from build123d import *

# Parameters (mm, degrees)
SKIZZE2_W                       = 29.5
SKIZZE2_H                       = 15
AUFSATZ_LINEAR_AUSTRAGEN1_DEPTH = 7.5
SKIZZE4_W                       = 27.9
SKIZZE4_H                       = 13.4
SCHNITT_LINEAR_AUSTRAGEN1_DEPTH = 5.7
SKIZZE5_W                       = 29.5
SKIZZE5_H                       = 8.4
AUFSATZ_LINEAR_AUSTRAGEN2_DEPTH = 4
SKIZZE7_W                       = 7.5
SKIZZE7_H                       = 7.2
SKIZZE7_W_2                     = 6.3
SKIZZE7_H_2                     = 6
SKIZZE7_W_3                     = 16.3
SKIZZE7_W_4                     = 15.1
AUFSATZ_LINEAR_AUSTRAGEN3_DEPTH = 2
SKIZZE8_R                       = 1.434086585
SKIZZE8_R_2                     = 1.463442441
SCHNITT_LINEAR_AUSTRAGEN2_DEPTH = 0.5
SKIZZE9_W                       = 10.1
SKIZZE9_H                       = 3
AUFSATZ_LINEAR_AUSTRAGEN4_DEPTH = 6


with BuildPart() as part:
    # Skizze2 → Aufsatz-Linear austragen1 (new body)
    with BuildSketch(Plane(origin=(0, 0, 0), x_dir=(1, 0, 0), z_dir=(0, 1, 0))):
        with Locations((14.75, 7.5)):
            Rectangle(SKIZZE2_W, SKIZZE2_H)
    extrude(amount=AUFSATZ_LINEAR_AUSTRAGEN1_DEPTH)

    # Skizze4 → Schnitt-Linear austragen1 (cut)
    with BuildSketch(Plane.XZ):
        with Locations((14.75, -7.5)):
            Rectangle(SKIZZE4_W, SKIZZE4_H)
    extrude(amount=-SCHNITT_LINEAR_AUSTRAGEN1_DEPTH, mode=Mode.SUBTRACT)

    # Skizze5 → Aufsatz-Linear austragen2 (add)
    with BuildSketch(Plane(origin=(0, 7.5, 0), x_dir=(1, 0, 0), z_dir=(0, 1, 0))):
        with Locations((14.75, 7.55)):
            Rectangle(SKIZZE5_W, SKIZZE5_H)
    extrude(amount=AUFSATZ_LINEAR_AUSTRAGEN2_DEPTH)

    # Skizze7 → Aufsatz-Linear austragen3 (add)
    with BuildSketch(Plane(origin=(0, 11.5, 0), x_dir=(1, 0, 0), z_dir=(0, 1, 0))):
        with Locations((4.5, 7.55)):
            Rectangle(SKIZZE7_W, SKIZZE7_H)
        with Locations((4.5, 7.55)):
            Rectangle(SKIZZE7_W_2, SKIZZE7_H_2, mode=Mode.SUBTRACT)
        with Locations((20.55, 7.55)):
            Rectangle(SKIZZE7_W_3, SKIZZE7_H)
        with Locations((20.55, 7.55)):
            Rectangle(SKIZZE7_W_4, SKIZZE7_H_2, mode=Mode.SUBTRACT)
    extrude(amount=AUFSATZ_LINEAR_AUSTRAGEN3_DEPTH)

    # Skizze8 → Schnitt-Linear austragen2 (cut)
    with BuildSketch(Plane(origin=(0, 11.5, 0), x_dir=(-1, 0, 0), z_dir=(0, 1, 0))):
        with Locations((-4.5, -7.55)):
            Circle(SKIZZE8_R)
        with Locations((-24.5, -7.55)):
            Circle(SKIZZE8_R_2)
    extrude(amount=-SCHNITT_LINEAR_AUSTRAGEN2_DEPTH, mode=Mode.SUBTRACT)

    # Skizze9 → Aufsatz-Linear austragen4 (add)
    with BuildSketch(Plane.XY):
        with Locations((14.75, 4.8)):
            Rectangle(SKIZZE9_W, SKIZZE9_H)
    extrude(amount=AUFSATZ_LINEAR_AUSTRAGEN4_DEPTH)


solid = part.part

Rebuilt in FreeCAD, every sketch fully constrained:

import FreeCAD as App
import Part
import Sketcher
from FreeCAD import Vector


def add_polygon(sketch, points):
    """Adds a closed chain of lines whose ends are joined by coincident constraints."""
    first, n = sketch.GeometryCount, len(points)
    for a, b in zip(points, points[1:] + points[:1]):
        sketch.addGeometry(Part.LineSegment(App.Vector(*a, 0), App.Vector(*b, 0)), False)
    for i in range(n):
        sketch.addConstraint(Sketcher.Constraint("Coincident", first + i, 2, first + (i + 1) % n, 1))

doc = App.newDocument("Part")
params = doc.addObject("Spreadsheet::Sheet", "Params")
for row, (alias, value) in enumerate([
    ("sketch1_height", "15 mm"),
    ("sketch1_width", "29.5 mm"),
    ("pad1_length", "7.5 mm"),
    ("sketch2_width", "27.9 mm"),
    ("sketch2_height", "13.4 mm"),
    ("pocket1_length", "5.7 mm"),
    ("sketch3_width", "29.5 mm"),
    ("sketch3_height", "8.4 mm"),
    ("pad2_length", "4 mm"),
    ("sketch4_height", "6 mm"),
    ("sketch4_width", "7.5 mm"),
    ("sketch4_width2", "6.3 mm"),
    ("sketch4_width3", "16.3 mm"),
    ("sketch4_width4", "15.1 mm"),
    ("pad3_length", "2 mm"),
    ("pocket2_length", "0.5 mm"),
    ("sketch6_height", "3 mm"),
    ("sketch6_width", "10.1 mm"),
    ("pad4_length", "6 mm"),
], start=1):
    params.set(f"A{row}", alias)
    params.set(f"B{row}", "=" + value)
    params.setAlias(f"B{row}", alias)

body = doc.addObject("PartDesign::Body", "Body")

# Sketch on XZ plane
sketch1 = doc.addObject("Sketcher::SketchObject", "Sketch")
body.addObject(sketch1)
sketch1.AttachmentSupport = (doc.XZ_Plane, [""])
sketch1.MapMode = "FlatFace"
add_polygon(sketch1, [(0, -15), (0, 0), (30, 0), (30, -15)])  # lines 0-3
sketch1.addConstraint([
    Sketcher.Constraint("Vertical", 0),
    Sketcher.Constraint("Horizontal", 1),
    Sketcher.Constraint("Vertical", 2),
    Sketcher.Constraint("Horizontal", 3),
    Sketcher.Constraint("Coincident", 0, 2, -1, 1),
    Sketcher.Constraint("DistanceY", 0, 1, 0, 2, 15.0),
    Sketcher.Constraint("DistanceX", 1, 1, 1, 2, 29.5),
])
sketch1.setExpression("Constraints[9]", "Params.sketch1_height")
sketch1.setExpression("Constraints[10]", "Params.sketch1_width")
pad1 = doc.addObject("PartDesign::Pad", "Pad")
body.addObject(pad1)
pad1.Profile = sketch1
pad1.setExpression("Length", "Params.pad1_length")
pad1.Reversed = True

# Sketch on XZ plane
sketch2 = doc.addObject("Sketcher::SketchObject", "Sketch001")
body.addObject(sketch2)
sketch2.AttachmentSupport = (doc.XZ_Plane, [""])
sketch2.MapMode = "FlatFace"
add_polygon(sketch2, [(1, -1), (1, -14), (29, -14), (29, -1)])  # lines 0-3
sketch2.addConstraint([
    Sketcher.Constraint("Vertical", 0),
    Sketcher.Constraint("Horizontal", 1),
    Sketcher.Constraint("Vertical", 2),
    Sketcher.Constraint("Horizontal", 3),
    Sketcher.Constraint("DistanceX", 1, 1, 1, 2, 27.9),
    Sketcher.Constraint("DistanceY", 0, 2, 0, 1, 13.4),
    Sketcher.Constraint("DistanceX", -1, 1, 0, 2, 0.8),
    Sketcher.Constraint("DistanceY", 0, 2, -1, 1, 14.2),
])
sketch2.setExpression("Constraints[8]", "Params.sketch2_width")
sketch2.setExpression("Constraints[9]", "Params.sketch2_height")
pocket1 = doc.addObject("PartDesign::Pocket", "Pocket")
body.addObject(pocket1)
pocket1.Profile = sketch2
pocket1.setExpression("Length", "Params.pocket1_length")

# Sketch on XZ plane
sketch3 = doc.addObject("Sketcher::SketchObject", "Sketch002")
body.addObject(sketch3)
sketch3.AttachmentSupport = (doc.XZ_Plane, [""])
sketch3.MapMode = "FlatFace"
sketch3.AttachmentOffset = App.Placement(Vector(0, 0, -7.5), App.Rotation())
add_polygon(sketch3, [(0, -12), (0, -3), (30, -3), (30, -12)])  # lines 0-3
sketch3.addConstraint([
    Sketcher.Constraint("Vertical", 0),
    Sketcher.Constraint("Horizontal", 1),
    Sketcher.Constraint("Vertical", 2),
    Sketcher.Constraint("Horizontal", 3),
    Sketcher.Constraint("PointOnObject", 0, 2, -2),
    Sketcher.Constraint("DistanceX", 1, 1, 1, 2, 29.5),
    Sketcher.Constraint("DistanceY", 0, 1, 0, 2, 8.4),
    Sketcher.Constraint("DistanceY", 0, 2, -1, 1, 3.35),
])
sketch3.setExpression("Constraints[9]", "Params.sketch3_width")
sketch3.setExpression("Constraints[10]", "Params.sketch3_height")
pad2 = doc.addObject("PartDesign::Pad", "Pad001")
body.addObject(pad2)
pad2.Profile = sketch3
pad2.setExpression("Length", "Params.pad2_length")
pad2.Reversed = True

# Sketch on XZ plane
sketch4 = doc.addObject("Sketcher::SketchObject", "Sketch003")
body.addObject(sketch4)
sketch4.AttachmentSupport = (doc.XZ_Plane, [""])
sketch4.MapMode = "FlatFace"
sketch4.AttachmentOffset = App.Placement(Vector(0, 0, -11.5), App.Rotation())
add_polygon(sketch4, [(1, -11), (1, -4), (8, -4), (8, -11)])  # lines 0-3
add_polygon(sketch4, [(8, -5), (1, -5), (1, -11), (8, -11)])  # lines 4-7
add_polygon(sketch4, [(12, -11), (12, -4), (29, -4), (29, -11)])  # lines 8-11
add_polygon(sketch4, [(28, -5), (13, -5), (13, -11), (28, -11)])  # lines 12-15
sketch4.addConstraint([
    Sketcher.Constraint("Vertical", 0),
    Sketcher.Constraint("Horizontal", 1),
    Sketcher.Constraint("Vertical", 2),
    Sketcher.Constraint("Horizontal", 3),
    Sketcher.Constraint("Horizontal", 4),
    Sketcher.Constraint("Vertical", 5),
    Sketcher.Constraint("Horizontal", 6),
    Sketcher.Constraint("Vertical", 7),
    Sketcher.Constraint("Vertical", 8),
    Sketcher.Constraint("Horizontal", 9),
    Sketcher.Constraint("Vertical", 10),
    Sketcher.Constraint("Horizontal", 11),
    Sketcher.Constraint("Horizontal", 12),
    Sketcher.Constraint("Vertical", 13),
    Sketcher.Constraint("Horizontal", 14),
    Sketcher.Constraint("Vertical", 15),
    Sketcher.Constraint("Horizontal", 1, 2, 8, 2),
    Sketcher.Constraint("Horizontal", 3, 2, 10, 2),
    Sketcher.Constraint("Horizontal", 7, 2, 12, 2),
    Sketcher.Constraint("Horizontal", 6, 2, 13, 2),
    Sketcher.Constraint("DistanceY", 5, 2, 5, 1, 6.0),
    Sketcher.Constraint("DistanceX", 1, 1, 1, 2, 7.5),
    Sketcher.Constraint("DistanceX", 4, 2, 4, 1, 6.3),
    Sketcher.Constraint("DistanceX", 9, 1, 9, 2, 16.3),
    Sketcher.Constraint("DistanceX", 12, 2, 12, 1, 15.1),
    Sketcher.Constraint("DistanceY", 0, 1, 0, 2, 7.2),
    Sketcher.Constraint("DistanceX", -1, 1, 12, 2, 13.0),
    Sketcher.Constraint("DistanceX", -1, 1, 8, 2, 12.4),
    Sketcher.Constraint("DistanceX", 0, 2, 4, 2, 0.6),
    Sketcher.Constraint("DistanceY", 4, 2, 0, 2, 0.6),
    Sketcher.Constraint("DistanceX", -1, 1, 0, 2, 0.75),
    Sketcher.Constraint("DistanceY", 0, 2, -1, 1, 3.95),
])
sketch4.setExpression("Constraints[36]", "Params.sketch4_height")
sketch4.setExpression("Constraints[37]", "Params.sketch4_width")
sketch4.setExpression("Constraints[38]", "Params.sketch4_width2")
sketch4.setExpression("Constraints[39]", "Params.sketch4_width3")
sketch4.setExpression("Constraints[40]", "Params.sketch4_width4")
pad3 = doc.addObject("PartDesign::Pad", "Pad002")
body.addObject(pad3)
pad3.Profile = sketch4
pad3.setExpression("Length", "Params.pad3_length")
pad3.Reversed = True

# Sketch on XZ plane
sketch5 = doc.addObject("Sketcher::SketchObject", "Sketch004")
body.addObject(sketch5)
sketch5.AttachmentSupport = (doc.XZ_Plane, [""])
sketch5.MapMode = "FlatFace"
sketch5.AttachmentOffset = App.Placement(Vector(0, 0, -11.5), App.Rotation())
sketch5.addGeometry([
    Part.Circle(Vector(4.5, -7.5, 0), Vector(0, 0, 1), 1.4),
    Part.Circle(Vector(24.5, -7.5, 0), Vector(0, 0, 1), 1.5),
], False)
sketch5.addConstraint([
    Sketcher.Constraint("Horizontal", 0, 3, 1, 3),
    Sketcher.Constraint("DistanceX", 0, 3, 1, 3, 20.0),
    Sketcher.Constraint("DistanceX", -1, 1, 0, 3, 4.5),
    Sketcher.Constraint("DistanceY", 0, 3, -1, 1, 7.55),
    Sketcher.Constraint("Diameter", 0, 2.868173),
    Sketcher.Constraint("Diameter", 1, 2.926885),
])
pocket2 = doc.addObject("PartDesign::Pocket", "Pocket001")
body.addObject(pocket2)
pocket2.Profile = sketch5
pocket2.setExpression("Length", "Params.pocket2_length")
pocket2.Reversed = True

# Sketch on XY plane
sketch6 = doc.addObject("Sketcher::SketchObject", "Sketch005")
body.addObject(sketch6)
sketch6.AttachmentSupport = (doc.XY_Plane, [""])
sketch6.MapMode = "FlatFace"
add_polygon(sketch6, [(9.7, 6.3), (9.7, 3.3), (19.8, 3.3), (19.8, 6.3)])  # lines 0-3
sketch6.addConstraint([
    Sketcher.Constraint("Vertical", 0),
    Sketcher.Constraint("Horizontal", 1),
    Sketcher.Constraint("Vertical", 2),
    Sketcher.Constraint("Horizontal", 3),
    Sketcher.Constraint("DistanceY", 0, 2, 0, 1, 3.0),
    Sketcher.Constraint("DistanceX", 1, 1, 1, 2, 10.1),
    Sketcher.Constraint("DistanceX", -1, 1, 0, 2, 9.7),
    Sketcher.Constraint("DistanceY", -1, 1, 0, 2, 3.3),
])
sketch6.setExpression("Constraints[8]", "Params.sketch6_height")
sketch6.setExpression("Constraints[9]", "Params.sketch6_width")
pad4 = doc.addObject("PartDesign::Pad", "Pad003")
body.addObject(pad4)
pad4.Profile = sketch6
pad4.setExpression("Length", "Params.pad4_length")

doc.recompute()
